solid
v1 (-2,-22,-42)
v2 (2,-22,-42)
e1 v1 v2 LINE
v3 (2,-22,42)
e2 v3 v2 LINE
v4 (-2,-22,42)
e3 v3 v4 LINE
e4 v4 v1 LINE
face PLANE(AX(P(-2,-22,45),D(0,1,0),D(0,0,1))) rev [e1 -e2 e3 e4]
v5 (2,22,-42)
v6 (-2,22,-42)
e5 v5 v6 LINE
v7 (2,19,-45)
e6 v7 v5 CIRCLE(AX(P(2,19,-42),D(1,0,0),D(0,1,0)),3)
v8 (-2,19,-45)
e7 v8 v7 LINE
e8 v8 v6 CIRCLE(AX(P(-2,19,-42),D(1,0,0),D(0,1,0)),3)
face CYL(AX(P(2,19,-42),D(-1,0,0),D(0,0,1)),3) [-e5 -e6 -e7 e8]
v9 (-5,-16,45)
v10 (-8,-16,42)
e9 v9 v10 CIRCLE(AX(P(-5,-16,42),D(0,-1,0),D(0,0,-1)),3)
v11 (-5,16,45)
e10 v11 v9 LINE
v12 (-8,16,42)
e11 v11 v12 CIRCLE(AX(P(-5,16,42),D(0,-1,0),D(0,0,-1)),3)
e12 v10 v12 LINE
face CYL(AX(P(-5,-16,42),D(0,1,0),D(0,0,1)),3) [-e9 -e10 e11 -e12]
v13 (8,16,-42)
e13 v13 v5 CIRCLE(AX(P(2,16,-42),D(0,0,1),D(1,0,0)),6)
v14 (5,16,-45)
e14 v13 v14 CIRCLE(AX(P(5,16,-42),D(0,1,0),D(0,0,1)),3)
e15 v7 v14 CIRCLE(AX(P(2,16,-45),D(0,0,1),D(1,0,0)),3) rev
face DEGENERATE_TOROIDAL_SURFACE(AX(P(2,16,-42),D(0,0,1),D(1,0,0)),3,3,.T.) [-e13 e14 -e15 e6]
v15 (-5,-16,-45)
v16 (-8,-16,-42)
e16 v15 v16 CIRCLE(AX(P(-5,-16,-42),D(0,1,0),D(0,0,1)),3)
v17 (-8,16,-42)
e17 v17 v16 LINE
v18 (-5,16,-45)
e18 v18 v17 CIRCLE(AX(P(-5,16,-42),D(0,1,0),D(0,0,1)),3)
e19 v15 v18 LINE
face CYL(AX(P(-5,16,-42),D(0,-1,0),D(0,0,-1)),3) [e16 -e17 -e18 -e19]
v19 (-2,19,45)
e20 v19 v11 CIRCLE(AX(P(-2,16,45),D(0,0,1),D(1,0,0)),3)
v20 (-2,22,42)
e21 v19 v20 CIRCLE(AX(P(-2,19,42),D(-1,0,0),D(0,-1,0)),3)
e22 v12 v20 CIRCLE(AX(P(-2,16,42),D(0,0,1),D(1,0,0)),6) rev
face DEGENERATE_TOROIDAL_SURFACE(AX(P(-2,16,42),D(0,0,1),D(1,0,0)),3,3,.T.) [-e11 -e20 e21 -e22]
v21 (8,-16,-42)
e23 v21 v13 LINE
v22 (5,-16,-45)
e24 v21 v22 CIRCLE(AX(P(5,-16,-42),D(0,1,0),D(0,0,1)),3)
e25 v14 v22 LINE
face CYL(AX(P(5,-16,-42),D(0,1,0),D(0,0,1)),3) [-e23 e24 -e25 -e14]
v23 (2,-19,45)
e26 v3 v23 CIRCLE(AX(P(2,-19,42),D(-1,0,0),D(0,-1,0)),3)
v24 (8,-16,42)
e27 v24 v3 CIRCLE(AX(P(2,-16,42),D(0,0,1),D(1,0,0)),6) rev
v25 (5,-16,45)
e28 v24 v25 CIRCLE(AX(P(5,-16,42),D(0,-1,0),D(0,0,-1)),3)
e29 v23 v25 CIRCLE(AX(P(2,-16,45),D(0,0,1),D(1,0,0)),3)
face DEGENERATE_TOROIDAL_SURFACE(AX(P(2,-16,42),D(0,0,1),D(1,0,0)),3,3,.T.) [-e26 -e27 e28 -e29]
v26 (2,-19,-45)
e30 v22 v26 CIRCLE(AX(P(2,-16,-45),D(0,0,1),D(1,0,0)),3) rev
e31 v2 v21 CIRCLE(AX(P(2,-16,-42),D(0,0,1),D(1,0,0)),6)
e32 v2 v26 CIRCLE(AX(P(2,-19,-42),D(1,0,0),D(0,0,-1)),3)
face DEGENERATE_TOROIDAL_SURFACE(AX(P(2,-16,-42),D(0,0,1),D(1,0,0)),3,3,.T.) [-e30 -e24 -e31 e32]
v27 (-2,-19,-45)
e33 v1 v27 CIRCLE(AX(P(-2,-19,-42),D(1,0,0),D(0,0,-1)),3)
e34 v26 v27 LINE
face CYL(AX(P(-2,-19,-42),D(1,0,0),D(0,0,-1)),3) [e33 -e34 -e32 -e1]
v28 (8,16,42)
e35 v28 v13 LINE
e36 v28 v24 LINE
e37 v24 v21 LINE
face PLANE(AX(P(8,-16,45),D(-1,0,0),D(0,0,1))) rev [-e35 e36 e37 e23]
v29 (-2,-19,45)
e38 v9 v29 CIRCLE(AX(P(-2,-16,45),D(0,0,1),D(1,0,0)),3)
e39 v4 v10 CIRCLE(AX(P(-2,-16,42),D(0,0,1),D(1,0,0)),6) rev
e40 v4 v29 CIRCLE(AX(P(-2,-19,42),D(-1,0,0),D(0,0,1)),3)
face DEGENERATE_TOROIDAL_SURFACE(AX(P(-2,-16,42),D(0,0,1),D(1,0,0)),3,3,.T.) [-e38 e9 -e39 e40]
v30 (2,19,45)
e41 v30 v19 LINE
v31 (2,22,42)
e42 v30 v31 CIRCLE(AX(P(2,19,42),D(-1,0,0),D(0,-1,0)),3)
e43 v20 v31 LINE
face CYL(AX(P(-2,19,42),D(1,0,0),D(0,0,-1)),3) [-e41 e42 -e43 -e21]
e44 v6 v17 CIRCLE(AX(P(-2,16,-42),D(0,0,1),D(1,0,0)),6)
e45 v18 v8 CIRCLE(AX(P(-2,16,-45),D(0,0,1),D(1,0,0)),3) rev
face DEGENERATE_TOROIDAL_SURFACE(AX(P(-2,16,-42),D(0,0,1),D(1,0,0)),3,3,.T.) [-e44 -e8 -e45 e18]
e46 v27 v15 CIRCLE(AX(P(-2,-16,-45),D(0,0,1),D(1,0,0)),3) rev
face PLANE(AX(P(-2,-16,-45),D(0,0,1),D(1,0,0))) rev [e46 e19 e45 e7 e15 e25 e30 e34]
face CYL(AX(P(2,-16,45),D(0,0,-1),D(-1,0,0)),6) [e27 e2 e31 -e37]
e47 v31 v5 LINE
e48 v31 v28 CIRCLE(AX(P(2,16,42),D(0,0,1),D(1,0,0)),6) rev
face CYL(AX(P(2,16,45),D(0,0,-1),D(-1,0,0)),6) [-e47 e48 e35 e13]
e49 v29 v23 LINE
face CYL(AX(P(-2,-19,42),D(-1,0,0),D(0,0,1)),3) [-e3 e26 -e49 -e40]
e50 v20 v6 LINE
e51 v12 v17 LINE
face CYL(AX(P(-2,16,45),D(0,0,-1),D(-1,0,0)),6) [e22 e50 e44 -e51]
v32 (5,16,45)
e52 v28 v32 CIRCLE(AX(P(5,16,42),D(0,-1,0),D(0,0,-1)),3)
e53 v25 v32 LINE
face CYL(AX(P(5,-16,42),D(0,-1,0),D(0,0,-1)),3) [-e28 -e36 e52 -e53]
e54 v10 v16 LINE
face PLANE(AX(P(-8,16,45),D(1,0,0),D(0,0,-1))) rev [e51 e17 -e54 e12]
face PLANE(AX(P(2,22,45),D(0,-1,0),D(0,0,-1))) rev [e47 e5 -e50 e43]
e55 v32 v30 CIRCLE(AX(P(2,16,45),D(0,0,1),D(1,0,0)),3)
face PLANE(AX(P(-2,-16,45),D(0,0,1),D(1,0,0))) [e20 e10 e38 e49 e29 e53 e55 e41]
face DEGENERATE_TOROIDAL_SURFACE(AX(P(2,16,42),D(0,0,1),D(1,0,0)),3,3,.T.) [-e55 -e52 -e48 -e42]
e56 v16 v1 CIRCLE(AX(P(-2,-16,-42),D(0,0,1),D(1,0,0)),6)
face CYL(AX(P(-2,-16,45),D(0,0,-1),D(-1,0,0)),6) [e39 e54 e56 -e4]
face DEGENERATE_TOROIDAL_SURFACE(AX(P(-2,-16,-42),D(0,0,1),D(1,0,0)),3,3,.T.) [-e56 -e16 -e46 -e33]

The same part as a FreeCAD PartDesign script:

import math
import FreeCAD as App
import Part
import Sketcher
from FreeCAD import Vector
Q = App.Units.Quantity


def edges_at(feature, points):
    """Names of the edges that pass closest to the given points."""
    edges = feature.Shape.Edges
    near = lambda p: min(range(len(edges)), key=lambda i: edges[i].distToShape(Part.Vertex(*p))[0])
    return sorted({f"Edge{near(p) + 1}" for p in points})

doc = App.newDocument("Part")
body = doc.addObject("PartDesign::Body", "Body")

sketch1 = doc.addObject("Sketcher::SketchObject", "Sketch")
body.addObject(sketch1)
sketch1.AttachmentSupport = (doc.XY_Plane, [""])
sketch1.MapMode = "FlatFace"
sketch1.AttachmentOffset = App.Placement(Vector(0, 0, -45), App.Rotation())
sketch1.addGeometry([
    Part.LineSegment(Vector(-2, -22, 0), Vector(2, -22, 0)),
    Part.ArcOfCircle(Part.Circle(Vector(2, -16, 0), Vector(0, 0, 1), 6), math.radians(-90), math.radians(0)),
    Part.LineSegment(Vector(8, -16, 0), Vector(8, 16, 0)),
    Part.ArcOfCircle(Part.Circle(Vector(2, 16, 0), Vector(0, 0, 1), 6), math.radians(0), math.radians(90)),
    Part.LineSegment(Vector(2, 22, 0), Vector(-2, 22, 0)),
    Part.ArcOfCircle(Part.Circle(Vector(-2, 16, 0), Vector(0, 0, 1), 6), math.radians(90), math.radians(180)),
    Part.LineSegment(Vector(-8, 16, 0), Vector(-8, -16, 0)),
    Part.ArcOfCircle(Part.Circle(Vector(-2, -16, 0), Vector(0, 0, 1), 6), math.radians(180), math.radians(270)),
], False)
sketch1.addConstraint([
    Sketcher.Constraint("Tangent", 0, 2, 1, 1),
    Sketcher.Constraint("Tangent", 1, 2, 2, 1),
    Sketcher.Constraint("Tangent", 2, 2, 3, 1),
    Sketcher.Constraint("Tangent", 3, 2, 4, 1),
    Sketcher.Constraint("Tangent", 4, 2, 5, 1),
    Sketcher.Constraint("Tangent", 5, 2, 6, 1),
    Sketcher.Constraint("Tangent", 6, 2, 7, 1),
    Sketcher.Constraint("Tangent", 7, 2, 0, 1),
    Sketcher.Constraint("Horizontal", 0),
    Sketcher.Constraint("Vertical", 2),
    Sketcher.Constraint("Horizontal", 4),
    Sketcher.Constraint("Vertical", 6),
    Sketcher.Constraint("Equal", 1, 3),
    Sketcher.Constraint("Equal", 3, 5),
    Sketcher.Constraint("Equal", 5, 7),
    Sketcher.Constraint("Symmetric", 1, 3, 5, 3, -1, 1),
    Sketcher.Constraint("Radius", 1, Q("6 mm")),
    Sketcher.Constraint("DistanceX", 0, 1, 0, 2, Q("4 mm")),
    Sketcher.Constraint("DistanceY", 2, 1, 2, 2, Q("32 mm")),
])
pad1 = doc.addObject("PartDesign::Pad", "Pad")
body.addObject(pad1)
pad1.Profile = sketch1
pad1.Length = 90
doc.recompute()

fillet = doc.addObject("PartDesign::Fillet", "Fillet")
body.addObject(fillet)
fillet.Base = (pad1, edges_at(pad1, [
    (8, 0, -45),
    (6.243, -20.243, -45),
    (0, -22, -45),
    (-6.243, -20.243, -45),
    (6.243, -20.243, 45),
    (8, 0, 45),
    (6.243, 20.243, 45),
    (0, 22, 45),
    (-6.243, 20.243, 45),
    (-8, 0, 45),
    (-6.243, -20.243, 45),
    (-8, 0, -45),
    (0, -22, 45),
    (-6.243, 20.243, -45),
    (0, 22, -45),
    (6.243, 20.243, -45),
]))
fillet.Radius = 3

doc.recompute()
